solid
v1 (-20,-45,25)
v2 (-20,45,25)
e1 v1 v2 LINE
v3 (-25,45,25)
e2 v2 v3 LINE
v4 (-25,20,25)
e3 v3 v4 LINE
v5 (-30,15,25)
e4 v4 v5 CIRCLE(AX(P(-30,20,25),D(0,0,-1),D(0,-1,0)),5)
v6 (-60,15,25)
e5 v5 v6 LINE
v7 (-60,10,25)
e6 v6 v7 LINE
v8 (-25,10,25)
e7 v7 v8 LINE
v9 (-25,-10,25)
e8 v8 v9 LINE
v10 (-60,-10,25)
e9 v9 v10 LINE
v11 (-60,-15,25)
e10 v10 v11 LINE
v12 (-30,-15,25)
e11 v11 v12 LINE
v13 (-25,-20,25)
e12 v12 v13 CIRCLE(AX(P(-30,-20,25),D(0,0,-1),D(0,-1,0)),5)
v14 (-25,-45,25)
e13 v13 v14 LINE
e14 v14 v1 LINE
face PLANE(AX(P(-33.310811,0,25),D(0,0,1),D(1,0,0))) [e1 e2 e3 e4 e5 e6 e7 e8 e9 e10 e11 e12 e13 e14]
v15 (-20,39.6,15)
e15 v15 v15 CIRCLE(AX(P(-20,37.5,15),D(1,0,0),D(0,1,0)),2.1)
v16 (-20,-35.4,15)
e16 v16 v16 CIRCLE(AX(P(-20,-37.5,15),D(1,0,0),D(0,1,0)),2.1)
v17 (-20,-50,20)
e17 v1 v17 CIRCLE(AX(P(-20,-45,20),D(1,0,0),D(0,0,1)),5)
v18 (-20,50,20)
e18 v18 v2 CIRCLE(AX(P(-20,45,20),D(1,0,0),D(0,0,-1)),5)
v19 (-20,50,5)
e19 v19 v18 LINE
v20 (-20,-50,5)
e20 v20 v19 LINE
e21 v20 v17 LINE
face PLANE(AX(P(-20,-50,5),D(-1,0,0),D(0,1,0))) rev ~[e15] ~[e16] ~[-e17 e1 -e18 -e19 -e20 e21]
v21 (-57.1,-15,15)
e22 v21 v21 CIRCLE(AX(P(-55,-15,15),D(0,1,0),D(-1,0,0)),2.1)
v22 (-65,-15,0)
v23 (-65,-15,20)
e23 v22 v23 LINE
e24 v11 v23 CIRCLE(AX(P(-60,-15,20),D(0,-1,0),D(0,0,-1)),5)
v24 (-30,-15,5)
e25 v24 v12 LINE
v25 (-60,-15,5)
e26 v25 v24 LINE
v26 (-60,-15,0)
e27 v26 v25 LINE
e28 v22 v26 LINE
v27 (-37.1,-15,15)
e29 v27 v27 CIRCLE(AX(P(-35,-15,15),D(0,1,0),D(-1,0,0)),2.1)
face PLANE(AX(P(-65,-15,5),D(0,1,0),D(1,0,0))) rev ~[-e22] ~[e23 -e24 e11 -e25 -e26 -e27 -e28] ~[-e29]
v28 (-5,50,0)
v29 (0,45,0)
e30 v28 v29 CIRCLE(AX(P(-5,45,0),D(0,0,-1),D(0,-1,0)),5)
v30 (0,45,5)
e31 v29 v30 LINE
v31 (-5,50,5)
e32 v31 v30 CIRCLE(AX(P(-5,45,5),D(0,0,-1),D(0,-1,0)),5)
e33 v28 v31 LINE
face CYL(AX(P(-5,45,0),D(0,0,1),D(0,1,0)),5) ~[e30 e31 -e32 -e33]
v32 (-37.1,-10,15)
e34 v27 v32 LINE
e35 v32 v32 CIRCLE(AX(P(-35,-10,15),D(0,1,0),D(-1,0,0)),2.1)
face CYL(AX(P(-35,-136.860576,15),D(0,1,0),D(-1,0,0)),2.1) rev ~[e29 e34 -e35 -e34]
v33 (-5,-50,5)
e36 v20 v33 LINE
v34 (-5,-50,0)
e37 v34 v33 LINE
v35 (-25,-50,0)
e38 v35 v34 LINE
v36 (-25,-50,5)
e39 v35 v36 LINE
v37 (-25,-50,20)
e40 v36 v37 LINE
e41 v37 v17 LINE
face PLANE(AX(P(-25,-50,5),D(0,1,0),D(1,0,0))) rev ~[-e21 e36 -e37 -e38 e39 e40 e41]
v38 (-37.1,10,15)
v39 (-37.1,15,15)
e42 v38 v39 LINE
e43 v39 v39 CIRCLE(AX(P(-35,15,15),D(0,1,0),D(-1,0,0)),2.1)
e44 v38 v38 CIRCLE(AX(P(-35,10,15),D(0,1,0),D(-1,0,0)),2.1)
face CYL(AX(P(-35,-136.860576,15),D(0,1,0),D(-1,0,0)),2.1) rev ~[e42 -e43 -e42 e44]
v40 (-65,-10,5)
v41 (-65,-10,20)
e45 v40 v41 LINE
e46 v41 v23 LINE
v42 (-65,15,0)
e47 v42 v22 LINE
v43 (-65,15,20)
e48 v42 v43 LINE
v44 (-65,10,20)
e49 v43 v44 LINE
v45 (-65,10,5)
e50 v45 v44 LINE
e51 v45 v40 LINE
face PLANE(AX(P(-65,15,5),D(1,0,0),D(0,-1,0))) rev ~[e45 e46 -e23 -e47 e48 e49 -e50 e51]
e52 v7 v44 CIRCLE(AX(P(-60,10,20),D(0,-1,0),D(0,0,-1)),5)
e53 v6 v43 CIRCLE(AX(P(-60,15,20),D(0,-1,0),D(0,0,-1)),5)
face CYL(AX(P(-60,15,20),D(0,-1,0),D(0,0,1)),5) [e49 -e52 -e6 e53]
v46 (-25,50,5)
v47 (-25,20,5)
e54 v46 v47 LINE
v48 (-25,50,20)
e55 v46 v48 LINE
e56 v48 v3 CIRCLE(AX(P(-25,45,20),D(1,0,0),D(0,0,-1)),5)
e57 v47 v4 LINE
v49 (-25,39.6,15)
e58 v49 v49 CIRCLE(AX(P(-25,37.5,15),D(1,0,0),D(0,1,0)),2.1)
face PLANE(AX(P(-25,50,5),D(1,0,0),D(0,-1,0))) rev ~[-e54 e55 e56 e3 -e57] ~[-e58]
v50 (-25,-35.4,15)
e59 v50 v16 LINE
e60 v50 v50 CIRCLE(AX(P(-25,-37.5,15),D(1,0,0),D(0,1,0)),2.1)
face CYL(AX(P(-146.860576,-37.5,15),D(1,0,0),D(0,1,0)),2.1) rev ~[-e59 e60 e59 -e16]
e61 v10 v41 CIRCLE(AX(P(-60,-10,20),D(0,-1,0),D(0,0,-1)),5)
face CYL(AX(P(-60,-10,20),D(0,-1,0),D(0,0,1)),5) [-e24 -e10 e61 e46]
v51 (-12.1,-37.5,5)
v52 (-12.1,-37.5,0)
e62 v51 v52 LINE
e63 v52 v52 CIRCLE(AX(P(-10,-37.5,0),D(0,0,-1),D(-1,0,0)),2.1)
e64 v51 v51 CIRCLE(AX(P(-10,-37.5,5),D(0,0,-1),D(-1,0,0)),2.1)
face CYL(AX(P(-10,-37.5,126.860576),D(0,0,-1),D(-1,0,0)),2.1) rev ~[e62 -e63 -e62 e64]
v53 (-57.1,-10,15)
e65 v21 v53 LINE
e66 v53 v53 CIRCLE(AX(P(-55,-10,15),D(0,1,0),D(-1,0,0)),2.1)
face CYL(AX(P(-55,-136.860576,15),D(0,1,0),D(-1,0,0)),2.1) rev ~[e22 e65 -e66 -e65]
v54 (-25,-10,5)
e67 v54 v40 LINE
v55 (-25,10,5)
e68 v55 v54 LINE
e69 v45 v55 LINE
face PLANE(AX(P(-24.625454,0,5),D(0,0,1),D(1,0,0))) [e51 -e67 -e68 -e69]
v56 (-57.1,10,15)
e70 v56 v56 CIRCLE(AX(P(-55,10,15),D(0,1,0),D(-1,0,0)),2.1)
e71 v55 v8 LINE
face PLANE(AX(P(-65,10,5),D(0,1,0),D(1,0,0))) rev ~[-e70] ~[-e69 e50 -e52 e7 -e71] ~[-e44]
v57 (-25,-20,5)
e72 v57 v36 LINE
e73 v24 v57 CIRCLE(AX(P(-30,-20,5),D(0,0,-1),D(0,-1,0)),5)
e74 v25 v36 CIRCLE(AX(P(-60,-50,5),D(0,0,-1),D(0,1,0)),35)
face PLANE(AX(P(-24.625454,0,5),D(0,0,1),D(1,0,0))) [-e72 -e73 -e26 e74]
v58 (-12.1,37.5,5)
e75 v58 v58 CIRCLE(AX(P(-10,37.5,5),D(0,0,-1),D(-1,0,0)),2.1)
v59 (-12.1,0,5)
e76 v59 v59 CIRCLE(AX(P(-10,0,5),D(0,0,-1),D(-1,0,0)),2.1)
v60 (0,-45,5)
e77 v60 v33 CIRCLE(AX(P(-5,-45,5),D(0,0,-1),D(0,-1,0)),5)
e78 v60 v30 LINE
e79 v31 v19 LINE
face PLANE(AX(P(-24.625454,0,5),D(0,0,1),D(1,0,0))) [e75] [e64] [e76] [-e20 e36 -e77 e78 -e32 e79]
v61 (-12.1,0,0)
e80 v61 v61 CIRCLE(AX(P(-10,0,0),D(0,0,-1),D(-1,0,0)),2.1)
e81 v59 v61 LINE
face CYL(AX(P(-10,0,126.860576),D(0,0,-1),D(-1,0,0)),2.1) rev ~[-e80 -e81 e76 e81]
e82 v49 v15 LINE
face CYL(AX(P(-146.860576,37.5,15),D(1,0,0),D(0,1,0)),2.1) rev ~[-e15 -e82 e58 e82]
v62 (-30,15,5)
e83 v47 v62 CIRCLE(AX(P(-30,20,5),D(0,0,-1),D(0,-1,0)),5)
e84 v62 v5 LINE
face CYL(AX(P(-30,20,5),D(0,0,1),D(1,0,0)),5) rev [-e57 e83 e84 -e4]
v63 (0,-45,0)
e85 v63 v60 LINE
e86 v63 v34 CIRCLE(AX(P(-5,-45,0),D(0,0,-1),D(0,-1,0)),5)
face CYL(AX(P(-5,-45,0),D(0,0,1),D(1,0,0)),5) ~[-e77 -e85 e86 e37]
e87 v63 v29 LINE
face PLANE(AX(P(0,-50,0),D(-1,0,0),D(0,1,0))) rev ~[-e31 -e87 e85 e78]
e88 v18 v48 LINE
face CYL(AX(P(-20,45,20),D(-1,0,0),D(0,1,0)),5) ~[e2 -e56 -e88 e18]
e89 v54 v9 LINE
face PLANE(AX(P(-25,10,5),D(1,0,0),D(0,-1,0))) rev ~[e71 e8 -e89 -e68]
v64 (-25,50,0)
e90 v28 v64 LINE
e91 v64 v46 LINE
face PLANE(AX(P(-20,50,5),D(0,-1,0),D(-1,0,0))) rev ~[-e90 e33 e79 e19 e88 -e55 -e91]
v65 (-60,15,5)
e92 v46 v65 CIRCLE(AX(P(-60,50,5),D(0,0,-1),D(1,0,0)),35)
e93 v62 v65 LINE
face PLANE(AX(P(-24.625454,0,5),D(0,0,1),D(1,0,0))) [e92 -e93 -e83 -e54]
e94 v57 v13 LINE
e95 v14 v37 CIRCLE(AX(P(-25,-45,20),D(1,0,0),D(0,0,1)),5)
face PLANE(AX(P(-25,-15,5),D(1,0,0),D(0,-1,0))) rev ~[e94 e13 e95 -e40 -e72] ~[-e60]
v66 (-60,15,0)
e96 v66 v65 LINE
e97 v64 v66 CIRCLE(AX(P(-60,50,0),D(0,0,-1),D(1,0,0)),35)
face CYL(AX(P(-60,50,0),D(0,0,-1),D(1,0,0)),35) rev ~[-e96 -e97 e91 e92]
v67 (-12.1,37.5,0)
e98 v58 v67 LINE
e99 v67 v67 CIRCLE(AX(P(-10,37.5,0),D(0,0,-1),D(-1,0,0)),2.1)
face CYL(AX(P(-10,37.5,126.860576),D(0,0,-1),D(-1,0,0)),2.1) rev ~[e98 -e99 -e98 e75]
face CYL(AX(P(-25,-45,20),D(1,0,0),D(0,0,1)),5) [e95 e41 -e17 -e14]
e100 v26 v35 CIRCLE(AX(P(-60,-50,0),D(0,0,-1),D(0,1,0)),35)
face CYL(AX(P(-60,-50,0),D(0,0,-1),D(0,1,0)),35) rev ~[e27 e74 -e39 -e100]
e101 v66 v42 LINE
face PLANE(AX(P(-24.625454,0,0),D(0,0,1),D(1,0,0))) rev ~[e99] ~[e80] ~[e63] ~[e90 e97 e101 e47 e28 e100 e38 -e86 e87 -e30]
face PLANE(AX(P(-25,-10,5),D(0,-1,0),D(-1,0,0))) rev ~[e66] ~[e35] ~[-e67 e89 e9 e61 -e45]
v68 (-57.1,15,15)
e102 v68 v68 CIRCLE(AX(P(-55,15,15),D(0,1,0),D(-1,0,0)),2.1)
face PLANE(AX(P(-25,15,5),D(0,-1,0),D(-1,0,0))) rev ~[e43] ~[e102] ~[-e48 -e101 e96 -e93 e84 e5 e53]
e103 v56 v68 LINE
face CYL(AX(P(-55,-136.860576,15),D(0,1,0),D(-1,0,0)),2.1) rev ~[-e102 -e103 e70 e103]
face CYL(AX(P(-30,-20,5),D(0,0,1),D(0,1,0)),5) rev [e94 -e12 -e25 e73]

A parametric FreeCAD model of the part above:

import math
import FreeCAD as App
import Part
import Sketcher

V = App.Vector
Q = App.Units.Quantity


def edges_at(feature, points):
    """Names of the edges that pass closest to the given points."""
    edges = feature.Shape.Edges
    near = lambda p: min(range(len(edges)), key=lambda i: edges[i].distToShape(Part.Vertex(*p))[0])
    return sorted({f"Edge{near(p) + 1}" for p in points})


def add_polygon(sketch, points):
    """Adds a closed chain of lines whose ends are joined by coincident constraints."""
    first, n = sketch.GeometryCount, len(points)
    for a, b in zip(points, points[1:] + points[:1]):
        sketch.addGeometry(Part.LineSegment(App.Vector(*a, 0), App.Vector(*b, 0)), False)
    for i in range(n):
        sketch.addConstraint(Sketcher.Constraint("Coincident", first + i, 2, first + (i + 1) % n, 1))

doc = App.newDocument("Part")
params = doc.addObject("Spreadsheet::Sheet", "Params")
for row, (alias, value) in enumerate([
    ("sketch1_radius", "35 mm"),
    ("sketch1_width", "25 mm"),
    ("sketch1_width2", "5 mm"),
    ("sketch1_height", "100 mm"),
    ("pad1_length", "5 mm"),
    ("sketch2_width", "5 mm"),
    ("sketch2_width2", "40 mm"),
    ("sketch2_height", "35 mm"),
    ("sketch2_height2", "20 mm"),
    ("pad2_length", "20 mm"),
    ("sketch3_diameter", "4.2 mm"),
    ("hole_diameter", "4.2 mm"),
    ("sketch4_diameter", "4.2 mm"),
    ("hole2_diameter", "4.2 mm"),
    ("sketch5_diameter", "4.2 mm"),
    ("hole3_diameter", "4.2 mm"),
    ("fillet_radius", "5 mm"),
], start=1):
    params.set(f"A{row}", alias)
    params.set(f"B{row}", "=" + value)
    params.setAlias(f"B{row}", alias)

body = doc.addObject("PartDesign::Body", "Body")

# Sketch on XY plane
sketch1 = body.newObject("Sketcher::SketchObject", "Sketch")
sketch1.AttachmentSupport = (doc.getObject("XY_Plane"), [""])
sketch1.MapMode = "FlatFace"
sketch1.addGeometry(Part.LineSegment(V(0, -50, 0), V(0, 50, 0)), False)
sketch1.addGeometry(Part.LineSegment(V(0, 50, 0), V(-25, 50, 0)), False)
sketch1.addGeometry(Part.ArcOfCircle(Part.Circle(V(-60, 50, 0), V(0, 0, 1), 35), math.radians(-90), math.radians(0)), False)
sketch1.addGeometry(Part.LineSegment(V(-60, 15, 0), V(-65, 15, 0)), False)
sketch1.addGeometry(Part.LineSegment(V(-65, 15, 0), V(-65, -15, 0)), False)
sketch1.addGeometry(Part.LineSegment(V(-65, -15, 0), V(-60, -15, 0)), False)
sketch1.addGeometry(Part.ArcOfCircle(Part.Circle(V(-60, -50, 0), V(0, 0, 1), 35), math.radians(0), math.radians(90)), False)
sketch1.addGeometry(Part.LineSegment(V(-25, -50, 0), V(0, -50, 0)), False)
sketch1.addConstraint(Sketcher.Constraint("Coincident", 0, 2, 1, 1))
sketch1.addConstraint(Sketcher.Constraint("Coincident", 1, 2, 2, 2))
sketch1.addConstraint(Sketcher.Constraint("Tangent", 2, 1, 3, 1))
sketch1.addConstraint(Sketcher.Constraint("Coincident", 3, 2, 4, 1))
sketch1.addConstraint(Sketcher.Constraint("Coincident", 4, 2, 5, 1))
sketch1.addConstraint(Sketcher.Constraint("Tangent", 5, 2, 6, 2))
sketch1.addConstraint(Sketcher.Constraint("Coincident", 6, 1, 7, 1))
sketch1.addConstraint(Sketcher.Constraint("Coincident", 7, 2, 0, 1))
sketch1.addConstraint(Sketcher.Constraint("Vertical", 0))
sketch1.addConstraint(Sketcher.Constraint("Horizontal", 1))
sketch1.addConstraint(Sketcher.Constraint("Horizontal", 3))
sketch1.addConstraint(Sketcher.Constraint("Vertical", 4))
sketch1.addConstraint(Sketcher.Constraint("Horizontal", 5))
sketch1.addConstraint(Sketcher.Constraint("Horizontal", 7))
sketch1.addConstraint(Sketcher.Constraint("Equal", 2, 6))
sketch1.addConstraint(Sketcher.Constraint("Symmetric", 0, 2, 7, 2, -1, 1))
sketch1.addConstraint(Sketcher.Constraint("Symmetric", 2, 3, 6, 3, -1))
sketch1.addConstraint(Sketcher.Constraint("Horizontal", 2, 3, 0, 2))
sketch1.addConstraint(Sketcher.Constraint("Radius", 2, Q("35 mm")))
sketch1.addConstraint(Sketcher.Constraint("DistanceX", 1, 2, 1, 1, Q("25 mm")))
sketch1.addConstraint(Sketcher.Constraint("DistanceX", 3, 2, 3, 1, Q("5 mm")))
sketch1.addConstraint(Sketcher.Constraint("DistanceY", 0, 1, 0, 2, Q("100 mm")))
sketch1.setExpression("Constraints[18]", "Params.sketch1_radius")
sketch1.setExpression("Constraints[19]", "Params.sketch1_width")
sketch1.setExpression("Constraints[20]", "Params.sketch1_width2")
sketch1.setExpression("Constraints[21]", "Params.sketch1_height")
pad1 = body.newObject("PartDesign::Pad", "Pad")
pad1.Profile = sketch1
pad1.setExpression("Length", "Params.pad1_length")

# Sketch on XY plane
sketch2 = body.newObject("Sketcher::SketchObject", "Sketch001")
sketch2.AttachmentSupport = (doc.getObject("XY_Plane"), [""])
sketch2.MapMode = "FlatFace"
sketch2.AttachmentOffset = App.Placement(V(0, 0, 5), App.Rotation())
add_polygon(sketch2, [(-20, 50), (-25, 50), (-25, 15), (-65, 15), (-65, 10), (-25, 10), (-25, -10), (-65, -10), (-65, -15), (-25, -15), (-25, -50), (-20, -50)])  # lines 0-11
sketch2.addConstraint(Sketcher.Constraint("Horizontal", 0))
sketch2.addConstraint(Sketcher.Constraint("Vertical", 1))
sketch2.addConstraint(Sketcher.Constraint("Horizontal", 2))
sketch2.addConstraint(Sketcher.Constraint("Vertical", 3))
sketch2.addConstraint(Sketcher.Constraint("Horizontal", 4))
sketch2.addConstraint(Sketcher.Constraint("Vertical", 5))
sketch2.addConstraint(Sketcher.Constraint("Horizontal", 6))
sketch2.addConstraint(Sketcher.Constraint("Vertical", 7))
sketch2.addConstraint(Sketcher.Constraint("Horizontal", 8))
sketch2.addConstraint(Sketcher.Constraint("Vertical", 9))
sketch2.addConstraint(Sketcher.Constraint("Horizontal", 10))
sketch2.addConstraint(Sketcher.Constraint("Vertical", 11))
sketch2.addConstraint(Sketcher.Constraint("Symmetric", 3, 2, 6, 2, -1))
sketch2.addConstraint(Sketcher.Constraint("Symmetric", 1, 2, 8, 2, -1))
sketch2.addConstraint(Sketcher.Constraint("Vertical", 1, 2, 4, 2))
sketch2.addConstraint(Sketcher.Constraint("Equal", 10, 3))
sketch2.addConstraint(Sketcher.Constraint("Equal", 1, 9))
sketch2.addConstraint(Sketcher.Constraint("DistanceX", 0, 2, 0, 1, Q("5 mm")))
sketch2.addConstraint(Sketcher.Constraint("DistanceX", 2, 2, 2, 1, Q("40 mm")))
sketch2.addConstraint(Sketcher.Constraint("DistanceY", 1, 2, 1, 1, Q("35 mm")))
sketch2.addConstraint(Sketcher.Constraint("DistanceY", 5, 2, 5, 1, Q("20 mm")))
sketch2.addConstraint(Sketcher.Constraint("DistanceX", 0, 2, -1, 1, Q("25 mm")))
sketch2.setExpression("Constraints[29]", "Params.sketch2_width")
sketch2.setExpression("Constraints[30]", "Params.sketch2_width2")
sketch2.setExpression("Constraints[31]", "Params.sketch2_height")
sketch2.setExpression("Constraints[32]", "Params.sketch2_height2")
pad2 = body.newObject("PartDesign::Pad", "Pad001")
pad2.Profile = sketch2
pad2.setExpression("Length", "Params.pad2_length")

# Sketch on XY plane
sketch3 = body.newObject("Sketcher::SketchObject", "Sketch002")
sketch3.AttachmentSupport = (doc.getObject("XY_Plane"), [""])
sketch3.MapMode = "FlatFace"
sketch3.AttachmentOffset = App.Placement(V(0, 0, 5), App.Rotation())
sketch3.addGeometry(Part.Circle(V(-10, -37.5, 0), V(0, 0, 1), 2.1), False)
sketch3.addGeometry(Part.Circle(V(-10, 0, 0), V(0, 0, 1), 2.1), False)
sketch3.addGeometry(Part.Circle(V(-10, 37.5, 0), V(0, 0, 1), 2.1), False)
sketch3.addConstraint(Sketcher.Constraint("Equal", 0, 1))
sketch3.addConstraint(Sketcher.Constraint("Equal", 1, 2))
sketch3.addConstraint(Sketcher.Constraint("Symmetric", 0, 3, 2, 3, -1))
sketch3.addConstraint(Sketcher.Constraint("PointOnObject", 1, 3, -1))
sketch3.addConstraint(Sketcher.Constraint("Vertical", 0, 3, 1, 3))
sketch3.addConstraint(Sketcher.Constraint("Diameter", 0, Q("4.2 mm")))
sketch3.addConstraint(Sketcher.Constraint("DistanceX", 0, 3, -1, 1, Q("10 mm")))
sketch3.addConstraint(Sketcher.Constraint("DistanceY", 0, 3, 2, 3, Q("75 mm")))
sketch3.setExpression("Constraints[5]", "Params.sketch3_diameter")
doc.recompute()
hole = body.newObject("PartDesign::Hole", "Hole")
hole.Profile = sketch3
hole.ThreadType = "None"
hole.setExpression("Diameter", "Params.hole_diameter")
hole.DepthType = "ThroughAll"

# Sketch on YZ plane
sketch4 = body.newObject("Sketcher::SketchObject", "Sketch003")
sketch4.AttachmentSupport = (doc.getObject("YZ_Plane"), [""])
sketch4.MapMode = "FlatFace"
sketch4.AttachmentOffset = App.Placement(V(0, 0, -25), App.Rotation())
sketch4.addGeometry(Part.Circle(V(-37.5, 15, 0), V(0, 0, 1), 2.1), False)
sketch4.addGeometry(Part.Circle(V(37.5, 15, 0), V(0, 0, 1), 2.1), False)
sketch4.addConstraint(Sketcher.Constraint("Equal", 0, 1))
sketch4.addConstraint(Sketcher.Constraint("Symmetric", 0, 3, 1, 3, -2))
sketch4.addConstraint(Sketcher.Constraint("Diameter", 0, Q("4.2 mm")))
sketch4.addConstraint(Sketcher.Constraint("DistanceY", -1, 1, 0, 3, Q("15 mm")))
sketch4.addConstraint(Sketcher.Constraint("DistanceX", 0, 3, 1, 3, Q("75 mm")))
sketch4.setExpression("Constraints[2]", "Params.sketch4_diameter")
doc.recompute()
hole2 = body.newObject("PartDesign::Hole", "Hole001")
hole2.Profile = sketch4
hole2.ThreadType = "None"
hole2.setExpression("Diameter", "Params.hole2_diameter")
hole2.DepthType = "ThroughAll"
hole2.Reversed = True

# Sketch on XZ plane
sketch5 = body.newObject("Sketcher::SketchObject", "Sketch004")
sketch5.AttachmentSupport = (doc.getObject("XZ_Plane"), [""])
sketch5.MapMode = "FlatFace"
sketch5.AttachmentOffset = App.Placement(V(0, 0, 15), App.Rotation())
sketch5.addGeometry(Part.Circle(V(-55, 15, 0), V(0, 0, 1), 2.1), False)
sketch5.addGeometry(Part.Circle(V(-35, 15, 0), V(0, 0, 1), 2.1), False)
sketch5.addConstraint(Sketcher.Constraint("Equal", 0, 1))
sketch5.addConstraint(Sketcher.Constraint("Horizontal", 0, 3, 1, 3))
sketch5.addConstraint(Sketcher.Constraint("Diameter", 0, Q("4.2 mm")))
sketch5.addConstraint(Sketcher.Constraint("DistanceX", 0, 3, -1, 1, Q("55 mm")))
sketch5.addConstraint(Sketcher.Constraint("DistanceY", -1, 1, 0, 3, Q("15 mm")))
sketch5.addConstraint(Sketcher.Constraint("DistanceX", 1, 3, -1, 1, Q("35 mm")))
sketch5.setExpression("Constraints[2]", "Params.sketch5_diameter")
doc.recompute()
hole3 = body.newObject("PartDesign::Hole", "Hole002")
hole3.Profile = sketch5
hole3.ThreadType = "None"
hole3.setExpression("Diameter", "Params.hole3_diameter")
hole3.DepthType = "ThroughAll"
doc.recompute()

fillet = body.newObject("PartDesign::Fillet", "Fillet")
fillet.Base = (hole3, edges_at(hole3, [
    (-65, -12.5, 25),
    (-65, 12.5, 25),
    (-22.5, 50, 25),
    (-22.5, -50, 25),
    (0, -50, 2.5),
    (0, 50, 2.5),
    (-25, -15, 15),
    (-25, 15, 15),
]))
fillet.setExpression("Radius", "Params.fillet_radius")

doc.recompute()
